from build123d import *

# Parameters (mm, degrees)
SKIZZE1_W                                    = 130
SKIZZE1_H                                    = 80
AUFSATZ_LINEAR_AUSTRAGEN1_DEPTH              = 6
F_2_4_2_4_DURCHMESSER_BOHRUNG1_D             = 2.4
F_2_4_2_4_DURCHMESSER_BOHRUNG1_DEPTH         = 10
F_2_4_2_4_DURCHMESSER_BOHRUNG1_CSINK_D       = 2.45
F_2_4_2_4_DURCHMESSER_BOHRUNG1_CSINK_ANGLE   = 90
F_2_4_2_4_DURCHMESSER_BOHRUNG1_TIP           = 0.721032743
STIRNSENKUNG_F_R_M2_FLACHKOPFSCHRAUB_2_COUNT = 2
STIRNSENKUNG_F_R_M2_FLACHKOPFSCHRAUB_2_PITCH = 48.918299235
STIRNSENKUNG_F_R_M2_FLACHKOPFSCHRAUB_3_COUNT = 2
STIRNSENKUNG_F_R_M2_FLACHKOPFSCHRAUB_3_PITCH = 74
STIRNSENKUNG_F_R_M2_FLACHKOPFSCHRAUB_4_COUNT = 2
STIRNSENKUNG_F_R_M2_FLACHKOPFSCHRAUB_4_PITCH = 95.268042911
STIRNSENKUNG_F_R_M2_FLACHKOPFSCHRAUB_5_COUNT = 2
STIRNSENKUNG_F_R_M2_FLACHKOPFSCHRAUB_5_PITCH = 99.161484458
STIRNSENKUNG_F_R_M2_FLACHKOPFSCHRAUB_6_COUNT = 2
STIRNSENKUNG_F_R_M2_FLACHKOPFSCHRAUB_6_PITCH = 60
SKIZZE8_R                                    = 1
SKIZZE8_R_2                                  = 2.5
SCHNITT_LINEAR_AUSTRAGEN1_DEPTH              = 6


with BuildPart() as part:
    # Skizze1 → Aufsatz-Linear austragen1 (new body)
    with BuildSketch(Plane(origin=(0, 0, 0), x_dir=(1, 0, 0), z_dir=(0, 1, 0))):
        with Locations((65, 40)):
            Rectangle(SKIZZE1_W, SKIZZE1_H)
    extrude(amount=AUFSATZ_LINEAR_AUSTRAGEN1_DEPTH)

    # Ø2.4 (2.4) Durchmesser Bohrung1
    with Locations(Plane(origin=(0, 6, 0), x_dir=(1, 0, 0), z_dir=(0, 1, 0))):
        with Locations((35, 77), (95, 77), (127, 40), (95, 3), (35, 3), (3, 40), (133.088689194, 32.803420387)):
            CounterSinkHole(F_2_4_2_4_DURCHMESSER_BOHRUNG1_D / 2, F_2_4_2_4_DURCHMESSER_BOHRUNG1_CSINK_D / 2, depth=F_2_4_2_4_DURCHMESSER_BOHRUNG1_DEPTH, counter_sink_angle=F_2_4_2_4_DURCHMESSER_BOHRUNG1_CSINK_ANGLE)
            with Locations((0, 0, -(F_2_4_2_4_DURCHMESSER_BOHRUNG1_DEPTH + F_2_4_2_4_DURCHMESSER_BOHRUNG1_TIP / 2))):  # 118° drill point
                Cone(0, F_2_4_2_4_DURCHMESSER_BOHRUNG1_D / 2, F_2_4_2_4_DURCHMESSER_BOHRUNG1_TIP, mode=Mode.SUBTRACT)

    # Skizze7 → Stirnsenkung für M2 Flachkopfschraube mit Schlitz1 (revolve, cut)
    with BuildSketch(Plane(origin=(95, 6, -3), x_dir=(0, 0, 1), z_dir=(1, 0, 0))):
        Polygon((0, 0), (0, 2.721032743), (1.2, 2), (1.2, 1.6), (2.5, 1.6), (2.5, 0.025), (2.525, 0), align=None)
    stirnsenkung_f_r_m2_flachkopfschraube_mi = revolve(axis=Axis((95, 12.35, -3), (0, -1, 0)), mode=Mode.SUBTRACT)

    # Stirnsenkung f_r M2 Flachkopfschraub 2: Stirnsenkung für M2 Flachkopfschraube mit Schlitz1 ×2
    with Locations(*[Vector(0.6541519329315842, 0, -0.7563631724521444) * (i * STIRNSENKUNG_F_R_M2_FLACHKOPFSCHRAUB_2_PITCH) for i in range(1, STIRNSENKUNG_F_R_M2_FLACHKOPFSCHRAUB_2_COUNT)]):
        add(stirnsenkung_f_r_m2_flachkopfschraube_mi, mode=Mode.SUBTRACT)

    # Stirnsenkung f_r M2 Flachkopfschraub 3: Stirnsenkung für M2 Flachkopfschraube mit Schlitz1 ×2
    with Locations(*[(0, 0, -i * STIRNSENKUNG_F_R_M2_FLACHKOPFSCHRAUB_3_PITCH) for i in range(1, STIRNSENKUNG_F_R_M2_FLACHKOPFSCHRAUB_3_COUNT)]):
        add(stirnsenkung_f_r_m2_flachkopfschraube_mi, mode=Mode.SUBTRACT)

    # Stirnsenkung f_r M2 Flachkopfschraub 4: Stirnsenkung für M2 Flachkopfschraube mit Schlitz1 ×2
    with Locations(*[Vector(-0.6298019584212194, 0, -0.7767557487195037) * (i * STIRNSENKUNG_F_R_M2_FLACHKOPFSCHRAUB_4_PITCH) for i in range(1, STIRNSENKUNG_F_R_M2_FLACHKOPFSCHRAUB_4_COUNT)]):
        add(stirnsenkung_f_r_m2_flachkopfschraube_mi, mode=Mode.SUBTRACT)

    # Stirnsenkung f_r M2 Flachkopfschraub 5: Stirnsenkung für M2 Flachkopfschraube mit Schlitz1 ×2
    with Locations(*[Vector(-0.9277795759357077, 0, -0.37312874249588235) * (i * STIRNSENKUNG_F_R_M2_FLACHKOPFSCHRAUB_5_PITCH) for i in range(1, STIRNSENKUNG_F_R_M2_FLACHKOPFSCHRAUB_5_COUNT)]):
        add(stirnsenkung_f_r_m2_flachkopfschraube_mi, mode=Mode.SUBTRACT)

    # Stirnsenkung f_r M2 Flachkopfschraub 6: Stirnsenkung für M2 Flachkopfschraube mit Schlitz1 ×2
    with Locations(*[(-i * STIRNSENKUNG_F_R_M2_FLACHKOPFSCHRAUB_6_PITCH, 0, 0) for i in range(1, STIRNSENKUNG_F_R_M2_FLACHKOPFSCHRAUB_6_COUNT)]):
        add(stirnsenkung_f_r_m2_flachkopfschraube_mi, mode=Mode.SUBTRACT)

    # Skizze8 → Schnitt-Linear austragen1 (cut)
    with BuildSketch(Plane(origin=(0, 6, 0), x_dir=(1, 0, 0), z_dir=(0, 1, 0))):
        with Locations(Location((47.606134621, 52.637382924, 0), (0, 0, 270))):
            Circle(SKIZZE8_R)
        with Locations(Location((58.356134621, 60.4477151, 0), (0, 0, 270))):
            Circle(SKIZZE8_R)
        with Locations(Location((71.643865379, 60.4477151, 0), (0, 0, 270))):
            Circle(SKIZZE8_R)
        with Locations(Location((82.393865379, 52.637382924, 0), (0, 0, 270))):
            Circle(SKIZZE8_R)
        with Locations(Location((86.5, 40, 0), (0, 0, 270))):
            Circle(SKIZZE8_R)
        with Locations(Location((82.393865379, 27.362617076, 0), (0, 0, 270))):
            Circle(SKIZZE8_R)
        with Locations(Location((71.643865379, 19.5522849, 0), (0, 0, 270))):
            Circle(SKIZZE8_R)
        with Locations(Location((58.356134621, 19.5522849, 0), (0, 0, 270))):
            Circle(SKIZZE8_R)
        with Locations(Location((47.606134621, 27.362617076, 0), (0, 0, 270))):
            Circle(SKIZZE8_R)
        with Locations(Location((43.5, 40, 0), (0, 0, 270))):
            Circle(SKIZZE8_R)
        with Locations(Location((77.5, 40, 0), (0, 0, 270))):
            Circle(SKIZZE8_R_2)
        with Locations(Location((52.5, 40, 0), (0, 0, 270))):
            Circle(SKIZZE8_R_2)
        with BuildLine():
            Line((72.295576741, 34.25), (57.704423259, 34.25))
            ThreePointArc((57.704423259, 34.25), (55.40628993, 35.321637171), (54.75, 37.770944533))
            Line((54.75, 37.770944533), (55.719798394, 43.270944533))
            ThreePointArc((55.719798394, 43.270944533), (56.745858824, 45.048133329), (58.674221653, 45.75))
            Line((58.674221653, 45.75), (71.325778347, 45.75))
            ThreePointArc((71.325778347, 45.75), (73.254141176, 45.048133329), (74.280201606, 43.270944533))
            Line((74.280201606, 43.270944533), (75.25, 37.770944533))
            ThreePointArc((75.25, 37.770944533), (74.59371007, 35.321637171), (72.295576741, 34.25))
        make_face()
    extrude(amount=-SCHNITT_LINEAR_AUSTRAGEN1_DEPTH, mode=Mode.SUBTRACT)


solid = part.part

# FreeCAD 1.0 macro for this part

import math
import FreeCAD as App
import Part
import Sketcher

V = App.Vector
Q = App.Units.Quantity


def add_polygon(sketch, points):
    """Adds a closed chain of lines whose ends are joined by coincident constraints."""
    first, n = sketch.GeometryCount, len(points)
    for a, b in zip(points, points[1:] + points[:1]):
        sketch.addGeometry(Part.LineSegment(App.Vector(*a, 0), App.Vector(*b, 0)), False)
    for i in range(n):
        sketch.addConstraint(Sketcher.Constraint("Coincident", first + i, 2, first + (i + 1) % n, 1))

doc = App.newDocument("Part")
body = doc.addObject("PartDesign::Body", "Body")

# Sketch on XZ plane
sketch1 = body.newObject("Sketcher::SketchObject", "Sketch")
sketch1.AttachmentSupport = (doc.getObject("XZ_Plane"), [""])
sketch1.MapMode = "FlatFace"
add_polygon(sketch1, [(0, -80), (0, 0), (130, 0), (130, -80)])  # lines 0-3
sketch1.addConstraint([
    Sketcher.Constraint("Vertical", 0),
    Sketcher.Constraint("Horizontal", 1),
    Sketcher.Constraint("Vertical", 2),
    Sketcher.Constraint("Horizontal", 3),
    Sketcher.Constraint("Coincident", 0, 2, -1, 1),
    Sketcher.Constraint("DistanceX", 1, 1, 1, 2, Q("130 mm")),
    Sketcher.Constraint("DistanceY", 0, 1, 0, 2, Q("80 mm")),
])
pad1 = body.newObject("PartDesign::Pad", "Pad")
pad1.Profile = sketch1
pad1.Length = 6
pad1.Reversed = True

# Sketch on XZ plane
sketch2 = body.newObject("Sketcher::SketchObject", "Sketch001")
sketch2.AttachmentSupport = (doc.getObject("XZ_Plane"), [""])
sketch2.MapMode = "FlatFace"
sketch2.AttachmentOffset = App.Placement(V(0, 0, -6), App.Rotation())
sketch2.addGeometry([
    Part.Circle(V(35, -77, 0), V(0, 0, 1), 1.2),  # 0
    Part.Circle(V(95, -77, 0), V(0, 0, 1), 1.2),  # 1
    Part.Circle(V(127, -40, 0), V(0, 0, 1), 1.2),  # 2
    Part.Circle(V(95, -3, 0), V(0, 0, 1), 1.2),  # 3
    Part.Circle(V(35, -3, 0), V(0, 0, 1), 1.2),  # 4
    Part.Circle(V(3, -40, 0), V(0, 0, 1), 1.2),  # 5
    Part.Circle(V(133.1, -32.8, 0), V(0, 0, 1), 1.2),  # 6
], False)
sketch2.addConstraint([
    Sketcher.Constraint("Equal", 0, 1),
    Sketcher.Constraint("Equal", 1, 2),
    Sketcher.Constraint("Equal", 2, 3),
    Sketcher.Constraint("Equal", 3, 4),
    Sketcher.Constraint("Equal", 4, 5),
    Sketcher.Constraint("Equal", 5, 6),
    Sketcher.Constraint("Horizontal", 0, 3, 1, 3),
    Sketcher.Constraint("Horizontal", 3, 3, 4, 3),
    Sketcher.Constraint("Horizontal", 2, 3, 5, 3),
    Sketcher.Constraint("Vertical", 1, 3, 3, 3),
    Sketcher.Constraint("Vertical", 0, 3, 4, 3),
    Sketcher.Constraint("Diameter", 0, Q("2.4 mm")),
    Sketcher.Constraint("DistanceX", -1, 1, 0, 3, Q("35 mm")),
    Sketcher.Constraint("DistanceY", 0, 3, -1, 1, Q("77 mm")),
    Sketcher.Constraint("DistanceX", -1, 1, 1, 3, Q("95 mm")),
    Sketcher.Constraint("DistanceX", -1, 1, 2, 3, Q("127 mm")),
    Sketcher.Constraint("DistanceY", 2, 3, -1, 1, Q("40 mm")),
    Sketcher.Constraint("DistanceY", 3, 3, -1, 1, Q("3 mm")),
    Sketcher.Constraint("DistanceX", -1, 1, 5, 3, Q("3 mm")),
    Sketcher.Constraint("DistanceX", -1, 1, 6, 3, Q("133.088689 mm")),
    Sketcher.Constraint("DistanceY", 6, 3, -1, 1, Q("32.80342 mm")),
])
doc.recompute()
hole = body.newObject("PartDesign::Hole", "Hole")
hole.Profile = sketch2
hole.ThreadType = "None"
hole.Diameter = 2.4
hole.DepthType = "Dimension"
hole.Depth = 10
hole.DrillPoint = "Angled"
hole.DrillPointAngle = 118
hole.HoleCutType = "Countersink"
hole.HoleCutDiameter = 2.45
hole.HoleCutCountersinkAngle = 90
hole.Reversed = True

# Sketch on YZ plane
sketch3 = body.newObject("Sketcher::SketchObject", "Sketch002")
sketch3.AttachmentSupport = (doc.getObject("YZ_Plane"), [""])
sketch3.MapMode = "FlatFace"
sketch3.AttachmentOffset = App.Placement(V(0, 0, 95), App.Rotation())
add_polygon(sketch3, [(3.279, -3), (6, -3), (6, -0.475), (5.975, -0.5), (4.4, -0.5), (4.4, -1.8), (4, -1.8)])  # lines 0-6
sketch3.addGeometry(Part.LineSegment(V(6, -3, 0), V(3.279, -3, 0)), True)  # axis
sketch3.addConstraint([
    Sketcher.Constraint("Horizontal", 0),
    Sketcher.Constraint("Vertical", 1),
    Sketcher.Constraint("Horizontal", 3),
    Sketcher.Constraint("Vertical", 4),
    Sketcher.Constraint("Horizontal", 5),
    Sketcher.Constraint("Horizontal", 7),
    Sketcher.Constraint("Coincident", 7, 1, 0, 2),
    Sketcher.Constraint("Equal", 0, 7),
    Sketcher.Constraint("Angle", 2, Q("-135 deg")),
    Sketcher.Constraint("Angle", 6, Q("-121 deg")),
    Sketcher.Constraint("DistanceX", 5, 2, 5, 1, Q("0.4 mm")),
    Sketcher.Constraint("DistanceY", 4, 2, 4, 1, Q("1.3 mm")),
    Sketcher.Constraint("DistanceX", -1, 1, 0, 2, Q("6 mm")),
    Sketcher.Constraint("DistanceY", 0, 2, -1, 1, Q("3 mm")),
    Sketcher.Constraint("DistanceX", -1, 1, 5, 2, Q("4 mm")),
    Sketcher.Constraint("DistanceY", 2, 2, -1, 1, Q("0.5 mm")),
    Sketcher.Constraint("DistanceX", 3, 2, 3, 1, Q("1.575 mm")),
])
groove = body.newObject("PartDesign::Groove", "Groove")
groove.Profile = sketch3
groove.ReferenceAxis = (sketch3, ["Axis0"])
groove.Angle = 360
doc.recompute()

datumline = body.newObject("PartDesign::Line", "DatumLine")
datumline.Placement = App.Placement(V(0, 0, 0), App.Rotation(V(0, 0, 1), V(0.654151933, 0, -0.756363172)))
linearpattern = body.newObject("PartDesign::LinearPattern", "LinearPattern")
linearpattern.Originals = [groove]
linearpattern.Direction = (datumline, [""])
linearpattern.Mode = "offset"
linearpattern.Offset = 48.918299
linearpattern.Occurrences = 2
body.Tip = linearpattern
doc.recompute()

linearpattern2 = body.newObject("PartDesign::LinearPattern", "LinearPattern001")
linearpattern2.Originals = [groove]
linearpattern2.Direction = (doc.getObject("Z_Axis"), [""])
linearpattern2.Mode = "offset"
linearpattern2.Offset = 74
linearpattern2.Occurrences = 2
linearpattern2.Reversed = True
body.Tip = linearpattern2
doc.recompute()

datumline2 = body.newObject("PartDesign::Line", "DatumLine001")
datumline2.Placement = App.Placement(V(0, 0, 0), App.Rotation(V(0, 0, 1), V(-0.629801958, 0, -0.776755749)))
linearpattern3 = body.newObject("PartDesign::LinearPattern", "LinearPattern002")
linearpattern3.Originals = [groove]
linearpattern3.Direction = (datumline2, [""])
linearpattern3.Mode = "offset"
linearpattern3.Offset = 95.268043
linearpattern3.Occurrences = 2
body.Tip = linearpattern3
doc.recompute()

datumline3 = body.newObject("PartDesign::Line", "DatumLine002")
datumline3.Placement = App.Placement(V(0, 0, 0), App.Rotation(V(0, 0, 1), V(-0.927779576, 0, -0.373128742)))
linearpattern4 = body.newObject("PartDesign::LinearPattern", "LinearPattern003")
linearpattern4.Originals = [groove]
linearpattern4.Direction = (datumline3, [""])
linearpattern4.Mode = "offset"
linearpattern4.Offset = 99.161484
linearpattern4.Occurrences = 2
body.Tip = linearpattern4
doc.recompute()

linearpattern5 = body.newObject("PartDesign::LinearPattern", "LinearPattern004")
linearpattern5.Originals = [groove]
linearpattern5.Direction = (doc.getObject("X_Axis"), [""])
linearpattern5.Mode = "offset"
linearpattern5.Offset = 60
linearpattern5.Occurrences = 2
linearpattern5.Reversed = True
body.Tip = linearpattern5

# Sketch on XZ plane
sketch4 = body.newObject("Sketcher::SketchObject", "Sketch003")
sketch4.AttachmentSupport = (doc.getObject("XZ_Plane"), [""])
sketch4.MapMode = "FlatFace"
sketch4.AttachmentOffset = App.Placement(V(0, 0, -6), App.Rotation())
sketch4.addGeometry([
    Part.Circle(V(47.6, -52.6, 0), V(0, 0, 1), 1),  # 0
    Part.Circle(V(58.4, -60.4, 0), V(0, 0, 1), 1),  # 1
    Part.Circle(V(71.6, -60.4, 0), V(0, 0, 1), 1),  # 2
    Part.Circle(V(82.4, -52.6, 0), V(0, 0, 1), 1),  # 3
    Part.Circle(V(86.5, -40, 0), V(0, 0, 1), 1),  # 4
    Part.Circle(V(82.4, -27.4, 0), V(0, 0, 1), 1),  # 5
    Part.Circle(V(71.6, -19.6, 0), V(0, 0, 1), 1),  # 6
    Part.Circle(V(58.4, -19.6, 0), V(0, 0, 1), 1),  # 7
    Part.Circle(V(47.6, -27.4, 0), V(0, 0, 1), 1),  # 8
    Part.Circle(V(43.5, -40, 0), V(0, 0, 1), 1),  # 9
    Part.Circle(V(77.5, -40, 0), V(0, 0, 1), 2.5),  # 10
    Part.Circle(V(52.5, -40, 0), V(0, 0, 1), 2.5),  # 11
    Part.LineSegment(V(57.7, -34.2, 0), V(72.3, -34.2, 0)),  # 12
    Part.ArcOfCircle(Part.Circle(V(72.3, -37.3, 0), V(0, 0, 1), 3), math.radians(-10), math.radians(90)),  # 13
    Part.LineSegment(V(75.2, -37.8, 0), V(74.3, -43.3, 0)),  # 14
    Part.ArcOfCircle(Part.Circle(V(71.3, -42.7, 0), V(0, 0, 1), 3), math.radians(-90), math.radians(-10)),  # 15
    Part.LineSegment(V(71.3, -45.8, 0), V(58.7, -45.8, 0)),  # 16
    Part.ArcOfCircle(Part.Circle(V(58.7, -42.7, 0), V(0, 0, 1), 3), math.radians(-170), math.radians(-90)),  # 17
    Part.LineSegment(V(55.7, -43.3, 0), V(54.8, -37.8, 0)),  # 18
    Part.ArcOfCircle(Part.Circle(V(57.7, -37.3, 0), V(0, 0, 1), 3), math.radians(90), math.radians(190)),  # 19
], False)
sketch4.addConstraint([
    Sketcher.Constraint("Tangent", 12, 2, 13, 2),
    Sketcher.Constraint("Tangent", 13, 1, 14, 1),
    Sketcher.Constraint("Tangent", 14, 2, 15, 2),
    Sketcher.Constraint("Tangent", 15, 1, 16, 1),
    Sketcher.Constraint("Tangent", 16, 2, 17, 2),
    Sketcher.Constraint("Tangent", 17, 1, 18, 1),
    Sketcher.Constraint("Tangent", 18, 2, 19, 2),
    Sketcher.Constraint("Tangent", 19, 1, 12, 1),
    Sketcher.Constraint("Horizontal", 12),
    Sketcher.Constraint("Horizontal", 16),
    Sketcher.Constraint("Equal", 0, 1),
    Sketcher.Constraint("Equal", 1, 2),
    Sketcher.Constraint("Equal", 2, 3),
    Sketcher.Constraint("Equal", 3, 4),
    Sketcher.Constraint("Equal", 4, 5),
    Sketcher.Constraint("Equal", 5, 6),
    Sketcher.Constraint("Equal", 6, 7),
    Sketcher.Constraint("Equal", 7, 8),
    Sketcher.Constraint("Equal", 8, 9),
    Sketcher.Constraint("Equal", 10, 11),
    Sketcher.Constraint("Equal", 13, 15),
    Sketcher.Constraint("Equal", 15, 17),
    Sketcher.Constraint("Equal", 17, 19),
    Sketcher.Constraint("Horizontal", 1, 3, 2, 3),
    Sketcher.Constraint("Horizontal", 0, 3, 3, 3),
    Sketcher.Constraint("Horizontal", 6, 3, 7, 3),
    Sketcher.Constraint("Horizontal", 5, 3, 8, 3),
    Sketcher.Constraint("Horizontal", 4, 3, 9, 3),
    Sketcher.Constraint("Horizontal", 9, 3, 10, 3),
    Sketcher.Constraint("Horizontal", 10, 3, 11, 3),
    Sketcher.Constraint("Horizontal", 14, 2, 17, 1),
    Sketcher.Constraint("Vertical", 3, 3, 5, 3),
    Sketcher.Constraint("Vertical", 2, 3, 6, 3),
    Sketcher.Constraint("Vertical", 1, 3, 7, 3),
    Sketcher.Constraint("Vertical", 0, 3, 8, 3),
    Sketcher.Constraint("Diameter", 0, Q("2 mm")),
    Sketcher.Constraint("Diameter", 10, Q("5 mm")),
    Sketcher.Constraint("Radius", 13, Q("3 mm")),
    Sketcher.Constraint("Angle", 14, Q("-100 deg")),
    Sketcher.Constraint("DistanceY", 4, 3, -1, 1, Q("40 mm")),
    Sketcher.Constraint("DistanceX", 10, 3, 4, 3, Q("9 mm")),
    Sketcher.Constraint("DistanceX", 9, 3, 11, 3, Q("9 mm")),
    Sketcher.Constraint("DistanceX", -1, 1, 4, 3, Q("86.5 mm")),
    Sketcher.Constraint("DistanceX", -1, 1, 9, 3, Q("43.5 mm")),
    Sketcher.Constraint("DistanceY", 15, 3, 13, 3, Q("5.5 mm")),
    Sketcher.Constraint("DistanceY", 13, 3, -1, 1, Q("37.25 mm")),
    Sketcher.Constraint("DistanceX", -1, 1, 13, 1, Q("75.25 mm")),
    Sketcher.Constraint("DistanceX", -1, 1, 18, 2, Q("54.75 mm")),
    Sketcher.Constraint("DistanceX", 0, 3, 1, 3, Q("10.75 mm")),
    Sketcher.Constraint("DistanceX", 2, 3, 3, 3, Q("10.75 mm")),
    Sketcher.Constraint("DistanceY", 2, 3, 5, 3, Q("33.085098 mm")),
    Sketcher.Constraint("DistanceY", 3, 3, 6, 3, Q("33.085098 mm")),
    Sketcher.Constraint("DistanceX", 1, 3, 2, 3, Q("13.287731 mm")),
    Sketcher.Constraint("DistanceY", 2, 3, 6, 3, Q("40.89543 mm")),
    Sketcher.Constraint("DistanceX", 13, 3, 5, 3, Q("10.098289 mm")),
    Sketcher.Constraint("DistanceY", 0, 3, 17, 1, Q("9.366438 mm")),
])
pocket1 = body.newObject("PartDesign::Pocket", "Pocket")
pocket1.Profile = sketch4
pocket1.Length = 6
pocket1.Reversed = True

doc.recompute()
